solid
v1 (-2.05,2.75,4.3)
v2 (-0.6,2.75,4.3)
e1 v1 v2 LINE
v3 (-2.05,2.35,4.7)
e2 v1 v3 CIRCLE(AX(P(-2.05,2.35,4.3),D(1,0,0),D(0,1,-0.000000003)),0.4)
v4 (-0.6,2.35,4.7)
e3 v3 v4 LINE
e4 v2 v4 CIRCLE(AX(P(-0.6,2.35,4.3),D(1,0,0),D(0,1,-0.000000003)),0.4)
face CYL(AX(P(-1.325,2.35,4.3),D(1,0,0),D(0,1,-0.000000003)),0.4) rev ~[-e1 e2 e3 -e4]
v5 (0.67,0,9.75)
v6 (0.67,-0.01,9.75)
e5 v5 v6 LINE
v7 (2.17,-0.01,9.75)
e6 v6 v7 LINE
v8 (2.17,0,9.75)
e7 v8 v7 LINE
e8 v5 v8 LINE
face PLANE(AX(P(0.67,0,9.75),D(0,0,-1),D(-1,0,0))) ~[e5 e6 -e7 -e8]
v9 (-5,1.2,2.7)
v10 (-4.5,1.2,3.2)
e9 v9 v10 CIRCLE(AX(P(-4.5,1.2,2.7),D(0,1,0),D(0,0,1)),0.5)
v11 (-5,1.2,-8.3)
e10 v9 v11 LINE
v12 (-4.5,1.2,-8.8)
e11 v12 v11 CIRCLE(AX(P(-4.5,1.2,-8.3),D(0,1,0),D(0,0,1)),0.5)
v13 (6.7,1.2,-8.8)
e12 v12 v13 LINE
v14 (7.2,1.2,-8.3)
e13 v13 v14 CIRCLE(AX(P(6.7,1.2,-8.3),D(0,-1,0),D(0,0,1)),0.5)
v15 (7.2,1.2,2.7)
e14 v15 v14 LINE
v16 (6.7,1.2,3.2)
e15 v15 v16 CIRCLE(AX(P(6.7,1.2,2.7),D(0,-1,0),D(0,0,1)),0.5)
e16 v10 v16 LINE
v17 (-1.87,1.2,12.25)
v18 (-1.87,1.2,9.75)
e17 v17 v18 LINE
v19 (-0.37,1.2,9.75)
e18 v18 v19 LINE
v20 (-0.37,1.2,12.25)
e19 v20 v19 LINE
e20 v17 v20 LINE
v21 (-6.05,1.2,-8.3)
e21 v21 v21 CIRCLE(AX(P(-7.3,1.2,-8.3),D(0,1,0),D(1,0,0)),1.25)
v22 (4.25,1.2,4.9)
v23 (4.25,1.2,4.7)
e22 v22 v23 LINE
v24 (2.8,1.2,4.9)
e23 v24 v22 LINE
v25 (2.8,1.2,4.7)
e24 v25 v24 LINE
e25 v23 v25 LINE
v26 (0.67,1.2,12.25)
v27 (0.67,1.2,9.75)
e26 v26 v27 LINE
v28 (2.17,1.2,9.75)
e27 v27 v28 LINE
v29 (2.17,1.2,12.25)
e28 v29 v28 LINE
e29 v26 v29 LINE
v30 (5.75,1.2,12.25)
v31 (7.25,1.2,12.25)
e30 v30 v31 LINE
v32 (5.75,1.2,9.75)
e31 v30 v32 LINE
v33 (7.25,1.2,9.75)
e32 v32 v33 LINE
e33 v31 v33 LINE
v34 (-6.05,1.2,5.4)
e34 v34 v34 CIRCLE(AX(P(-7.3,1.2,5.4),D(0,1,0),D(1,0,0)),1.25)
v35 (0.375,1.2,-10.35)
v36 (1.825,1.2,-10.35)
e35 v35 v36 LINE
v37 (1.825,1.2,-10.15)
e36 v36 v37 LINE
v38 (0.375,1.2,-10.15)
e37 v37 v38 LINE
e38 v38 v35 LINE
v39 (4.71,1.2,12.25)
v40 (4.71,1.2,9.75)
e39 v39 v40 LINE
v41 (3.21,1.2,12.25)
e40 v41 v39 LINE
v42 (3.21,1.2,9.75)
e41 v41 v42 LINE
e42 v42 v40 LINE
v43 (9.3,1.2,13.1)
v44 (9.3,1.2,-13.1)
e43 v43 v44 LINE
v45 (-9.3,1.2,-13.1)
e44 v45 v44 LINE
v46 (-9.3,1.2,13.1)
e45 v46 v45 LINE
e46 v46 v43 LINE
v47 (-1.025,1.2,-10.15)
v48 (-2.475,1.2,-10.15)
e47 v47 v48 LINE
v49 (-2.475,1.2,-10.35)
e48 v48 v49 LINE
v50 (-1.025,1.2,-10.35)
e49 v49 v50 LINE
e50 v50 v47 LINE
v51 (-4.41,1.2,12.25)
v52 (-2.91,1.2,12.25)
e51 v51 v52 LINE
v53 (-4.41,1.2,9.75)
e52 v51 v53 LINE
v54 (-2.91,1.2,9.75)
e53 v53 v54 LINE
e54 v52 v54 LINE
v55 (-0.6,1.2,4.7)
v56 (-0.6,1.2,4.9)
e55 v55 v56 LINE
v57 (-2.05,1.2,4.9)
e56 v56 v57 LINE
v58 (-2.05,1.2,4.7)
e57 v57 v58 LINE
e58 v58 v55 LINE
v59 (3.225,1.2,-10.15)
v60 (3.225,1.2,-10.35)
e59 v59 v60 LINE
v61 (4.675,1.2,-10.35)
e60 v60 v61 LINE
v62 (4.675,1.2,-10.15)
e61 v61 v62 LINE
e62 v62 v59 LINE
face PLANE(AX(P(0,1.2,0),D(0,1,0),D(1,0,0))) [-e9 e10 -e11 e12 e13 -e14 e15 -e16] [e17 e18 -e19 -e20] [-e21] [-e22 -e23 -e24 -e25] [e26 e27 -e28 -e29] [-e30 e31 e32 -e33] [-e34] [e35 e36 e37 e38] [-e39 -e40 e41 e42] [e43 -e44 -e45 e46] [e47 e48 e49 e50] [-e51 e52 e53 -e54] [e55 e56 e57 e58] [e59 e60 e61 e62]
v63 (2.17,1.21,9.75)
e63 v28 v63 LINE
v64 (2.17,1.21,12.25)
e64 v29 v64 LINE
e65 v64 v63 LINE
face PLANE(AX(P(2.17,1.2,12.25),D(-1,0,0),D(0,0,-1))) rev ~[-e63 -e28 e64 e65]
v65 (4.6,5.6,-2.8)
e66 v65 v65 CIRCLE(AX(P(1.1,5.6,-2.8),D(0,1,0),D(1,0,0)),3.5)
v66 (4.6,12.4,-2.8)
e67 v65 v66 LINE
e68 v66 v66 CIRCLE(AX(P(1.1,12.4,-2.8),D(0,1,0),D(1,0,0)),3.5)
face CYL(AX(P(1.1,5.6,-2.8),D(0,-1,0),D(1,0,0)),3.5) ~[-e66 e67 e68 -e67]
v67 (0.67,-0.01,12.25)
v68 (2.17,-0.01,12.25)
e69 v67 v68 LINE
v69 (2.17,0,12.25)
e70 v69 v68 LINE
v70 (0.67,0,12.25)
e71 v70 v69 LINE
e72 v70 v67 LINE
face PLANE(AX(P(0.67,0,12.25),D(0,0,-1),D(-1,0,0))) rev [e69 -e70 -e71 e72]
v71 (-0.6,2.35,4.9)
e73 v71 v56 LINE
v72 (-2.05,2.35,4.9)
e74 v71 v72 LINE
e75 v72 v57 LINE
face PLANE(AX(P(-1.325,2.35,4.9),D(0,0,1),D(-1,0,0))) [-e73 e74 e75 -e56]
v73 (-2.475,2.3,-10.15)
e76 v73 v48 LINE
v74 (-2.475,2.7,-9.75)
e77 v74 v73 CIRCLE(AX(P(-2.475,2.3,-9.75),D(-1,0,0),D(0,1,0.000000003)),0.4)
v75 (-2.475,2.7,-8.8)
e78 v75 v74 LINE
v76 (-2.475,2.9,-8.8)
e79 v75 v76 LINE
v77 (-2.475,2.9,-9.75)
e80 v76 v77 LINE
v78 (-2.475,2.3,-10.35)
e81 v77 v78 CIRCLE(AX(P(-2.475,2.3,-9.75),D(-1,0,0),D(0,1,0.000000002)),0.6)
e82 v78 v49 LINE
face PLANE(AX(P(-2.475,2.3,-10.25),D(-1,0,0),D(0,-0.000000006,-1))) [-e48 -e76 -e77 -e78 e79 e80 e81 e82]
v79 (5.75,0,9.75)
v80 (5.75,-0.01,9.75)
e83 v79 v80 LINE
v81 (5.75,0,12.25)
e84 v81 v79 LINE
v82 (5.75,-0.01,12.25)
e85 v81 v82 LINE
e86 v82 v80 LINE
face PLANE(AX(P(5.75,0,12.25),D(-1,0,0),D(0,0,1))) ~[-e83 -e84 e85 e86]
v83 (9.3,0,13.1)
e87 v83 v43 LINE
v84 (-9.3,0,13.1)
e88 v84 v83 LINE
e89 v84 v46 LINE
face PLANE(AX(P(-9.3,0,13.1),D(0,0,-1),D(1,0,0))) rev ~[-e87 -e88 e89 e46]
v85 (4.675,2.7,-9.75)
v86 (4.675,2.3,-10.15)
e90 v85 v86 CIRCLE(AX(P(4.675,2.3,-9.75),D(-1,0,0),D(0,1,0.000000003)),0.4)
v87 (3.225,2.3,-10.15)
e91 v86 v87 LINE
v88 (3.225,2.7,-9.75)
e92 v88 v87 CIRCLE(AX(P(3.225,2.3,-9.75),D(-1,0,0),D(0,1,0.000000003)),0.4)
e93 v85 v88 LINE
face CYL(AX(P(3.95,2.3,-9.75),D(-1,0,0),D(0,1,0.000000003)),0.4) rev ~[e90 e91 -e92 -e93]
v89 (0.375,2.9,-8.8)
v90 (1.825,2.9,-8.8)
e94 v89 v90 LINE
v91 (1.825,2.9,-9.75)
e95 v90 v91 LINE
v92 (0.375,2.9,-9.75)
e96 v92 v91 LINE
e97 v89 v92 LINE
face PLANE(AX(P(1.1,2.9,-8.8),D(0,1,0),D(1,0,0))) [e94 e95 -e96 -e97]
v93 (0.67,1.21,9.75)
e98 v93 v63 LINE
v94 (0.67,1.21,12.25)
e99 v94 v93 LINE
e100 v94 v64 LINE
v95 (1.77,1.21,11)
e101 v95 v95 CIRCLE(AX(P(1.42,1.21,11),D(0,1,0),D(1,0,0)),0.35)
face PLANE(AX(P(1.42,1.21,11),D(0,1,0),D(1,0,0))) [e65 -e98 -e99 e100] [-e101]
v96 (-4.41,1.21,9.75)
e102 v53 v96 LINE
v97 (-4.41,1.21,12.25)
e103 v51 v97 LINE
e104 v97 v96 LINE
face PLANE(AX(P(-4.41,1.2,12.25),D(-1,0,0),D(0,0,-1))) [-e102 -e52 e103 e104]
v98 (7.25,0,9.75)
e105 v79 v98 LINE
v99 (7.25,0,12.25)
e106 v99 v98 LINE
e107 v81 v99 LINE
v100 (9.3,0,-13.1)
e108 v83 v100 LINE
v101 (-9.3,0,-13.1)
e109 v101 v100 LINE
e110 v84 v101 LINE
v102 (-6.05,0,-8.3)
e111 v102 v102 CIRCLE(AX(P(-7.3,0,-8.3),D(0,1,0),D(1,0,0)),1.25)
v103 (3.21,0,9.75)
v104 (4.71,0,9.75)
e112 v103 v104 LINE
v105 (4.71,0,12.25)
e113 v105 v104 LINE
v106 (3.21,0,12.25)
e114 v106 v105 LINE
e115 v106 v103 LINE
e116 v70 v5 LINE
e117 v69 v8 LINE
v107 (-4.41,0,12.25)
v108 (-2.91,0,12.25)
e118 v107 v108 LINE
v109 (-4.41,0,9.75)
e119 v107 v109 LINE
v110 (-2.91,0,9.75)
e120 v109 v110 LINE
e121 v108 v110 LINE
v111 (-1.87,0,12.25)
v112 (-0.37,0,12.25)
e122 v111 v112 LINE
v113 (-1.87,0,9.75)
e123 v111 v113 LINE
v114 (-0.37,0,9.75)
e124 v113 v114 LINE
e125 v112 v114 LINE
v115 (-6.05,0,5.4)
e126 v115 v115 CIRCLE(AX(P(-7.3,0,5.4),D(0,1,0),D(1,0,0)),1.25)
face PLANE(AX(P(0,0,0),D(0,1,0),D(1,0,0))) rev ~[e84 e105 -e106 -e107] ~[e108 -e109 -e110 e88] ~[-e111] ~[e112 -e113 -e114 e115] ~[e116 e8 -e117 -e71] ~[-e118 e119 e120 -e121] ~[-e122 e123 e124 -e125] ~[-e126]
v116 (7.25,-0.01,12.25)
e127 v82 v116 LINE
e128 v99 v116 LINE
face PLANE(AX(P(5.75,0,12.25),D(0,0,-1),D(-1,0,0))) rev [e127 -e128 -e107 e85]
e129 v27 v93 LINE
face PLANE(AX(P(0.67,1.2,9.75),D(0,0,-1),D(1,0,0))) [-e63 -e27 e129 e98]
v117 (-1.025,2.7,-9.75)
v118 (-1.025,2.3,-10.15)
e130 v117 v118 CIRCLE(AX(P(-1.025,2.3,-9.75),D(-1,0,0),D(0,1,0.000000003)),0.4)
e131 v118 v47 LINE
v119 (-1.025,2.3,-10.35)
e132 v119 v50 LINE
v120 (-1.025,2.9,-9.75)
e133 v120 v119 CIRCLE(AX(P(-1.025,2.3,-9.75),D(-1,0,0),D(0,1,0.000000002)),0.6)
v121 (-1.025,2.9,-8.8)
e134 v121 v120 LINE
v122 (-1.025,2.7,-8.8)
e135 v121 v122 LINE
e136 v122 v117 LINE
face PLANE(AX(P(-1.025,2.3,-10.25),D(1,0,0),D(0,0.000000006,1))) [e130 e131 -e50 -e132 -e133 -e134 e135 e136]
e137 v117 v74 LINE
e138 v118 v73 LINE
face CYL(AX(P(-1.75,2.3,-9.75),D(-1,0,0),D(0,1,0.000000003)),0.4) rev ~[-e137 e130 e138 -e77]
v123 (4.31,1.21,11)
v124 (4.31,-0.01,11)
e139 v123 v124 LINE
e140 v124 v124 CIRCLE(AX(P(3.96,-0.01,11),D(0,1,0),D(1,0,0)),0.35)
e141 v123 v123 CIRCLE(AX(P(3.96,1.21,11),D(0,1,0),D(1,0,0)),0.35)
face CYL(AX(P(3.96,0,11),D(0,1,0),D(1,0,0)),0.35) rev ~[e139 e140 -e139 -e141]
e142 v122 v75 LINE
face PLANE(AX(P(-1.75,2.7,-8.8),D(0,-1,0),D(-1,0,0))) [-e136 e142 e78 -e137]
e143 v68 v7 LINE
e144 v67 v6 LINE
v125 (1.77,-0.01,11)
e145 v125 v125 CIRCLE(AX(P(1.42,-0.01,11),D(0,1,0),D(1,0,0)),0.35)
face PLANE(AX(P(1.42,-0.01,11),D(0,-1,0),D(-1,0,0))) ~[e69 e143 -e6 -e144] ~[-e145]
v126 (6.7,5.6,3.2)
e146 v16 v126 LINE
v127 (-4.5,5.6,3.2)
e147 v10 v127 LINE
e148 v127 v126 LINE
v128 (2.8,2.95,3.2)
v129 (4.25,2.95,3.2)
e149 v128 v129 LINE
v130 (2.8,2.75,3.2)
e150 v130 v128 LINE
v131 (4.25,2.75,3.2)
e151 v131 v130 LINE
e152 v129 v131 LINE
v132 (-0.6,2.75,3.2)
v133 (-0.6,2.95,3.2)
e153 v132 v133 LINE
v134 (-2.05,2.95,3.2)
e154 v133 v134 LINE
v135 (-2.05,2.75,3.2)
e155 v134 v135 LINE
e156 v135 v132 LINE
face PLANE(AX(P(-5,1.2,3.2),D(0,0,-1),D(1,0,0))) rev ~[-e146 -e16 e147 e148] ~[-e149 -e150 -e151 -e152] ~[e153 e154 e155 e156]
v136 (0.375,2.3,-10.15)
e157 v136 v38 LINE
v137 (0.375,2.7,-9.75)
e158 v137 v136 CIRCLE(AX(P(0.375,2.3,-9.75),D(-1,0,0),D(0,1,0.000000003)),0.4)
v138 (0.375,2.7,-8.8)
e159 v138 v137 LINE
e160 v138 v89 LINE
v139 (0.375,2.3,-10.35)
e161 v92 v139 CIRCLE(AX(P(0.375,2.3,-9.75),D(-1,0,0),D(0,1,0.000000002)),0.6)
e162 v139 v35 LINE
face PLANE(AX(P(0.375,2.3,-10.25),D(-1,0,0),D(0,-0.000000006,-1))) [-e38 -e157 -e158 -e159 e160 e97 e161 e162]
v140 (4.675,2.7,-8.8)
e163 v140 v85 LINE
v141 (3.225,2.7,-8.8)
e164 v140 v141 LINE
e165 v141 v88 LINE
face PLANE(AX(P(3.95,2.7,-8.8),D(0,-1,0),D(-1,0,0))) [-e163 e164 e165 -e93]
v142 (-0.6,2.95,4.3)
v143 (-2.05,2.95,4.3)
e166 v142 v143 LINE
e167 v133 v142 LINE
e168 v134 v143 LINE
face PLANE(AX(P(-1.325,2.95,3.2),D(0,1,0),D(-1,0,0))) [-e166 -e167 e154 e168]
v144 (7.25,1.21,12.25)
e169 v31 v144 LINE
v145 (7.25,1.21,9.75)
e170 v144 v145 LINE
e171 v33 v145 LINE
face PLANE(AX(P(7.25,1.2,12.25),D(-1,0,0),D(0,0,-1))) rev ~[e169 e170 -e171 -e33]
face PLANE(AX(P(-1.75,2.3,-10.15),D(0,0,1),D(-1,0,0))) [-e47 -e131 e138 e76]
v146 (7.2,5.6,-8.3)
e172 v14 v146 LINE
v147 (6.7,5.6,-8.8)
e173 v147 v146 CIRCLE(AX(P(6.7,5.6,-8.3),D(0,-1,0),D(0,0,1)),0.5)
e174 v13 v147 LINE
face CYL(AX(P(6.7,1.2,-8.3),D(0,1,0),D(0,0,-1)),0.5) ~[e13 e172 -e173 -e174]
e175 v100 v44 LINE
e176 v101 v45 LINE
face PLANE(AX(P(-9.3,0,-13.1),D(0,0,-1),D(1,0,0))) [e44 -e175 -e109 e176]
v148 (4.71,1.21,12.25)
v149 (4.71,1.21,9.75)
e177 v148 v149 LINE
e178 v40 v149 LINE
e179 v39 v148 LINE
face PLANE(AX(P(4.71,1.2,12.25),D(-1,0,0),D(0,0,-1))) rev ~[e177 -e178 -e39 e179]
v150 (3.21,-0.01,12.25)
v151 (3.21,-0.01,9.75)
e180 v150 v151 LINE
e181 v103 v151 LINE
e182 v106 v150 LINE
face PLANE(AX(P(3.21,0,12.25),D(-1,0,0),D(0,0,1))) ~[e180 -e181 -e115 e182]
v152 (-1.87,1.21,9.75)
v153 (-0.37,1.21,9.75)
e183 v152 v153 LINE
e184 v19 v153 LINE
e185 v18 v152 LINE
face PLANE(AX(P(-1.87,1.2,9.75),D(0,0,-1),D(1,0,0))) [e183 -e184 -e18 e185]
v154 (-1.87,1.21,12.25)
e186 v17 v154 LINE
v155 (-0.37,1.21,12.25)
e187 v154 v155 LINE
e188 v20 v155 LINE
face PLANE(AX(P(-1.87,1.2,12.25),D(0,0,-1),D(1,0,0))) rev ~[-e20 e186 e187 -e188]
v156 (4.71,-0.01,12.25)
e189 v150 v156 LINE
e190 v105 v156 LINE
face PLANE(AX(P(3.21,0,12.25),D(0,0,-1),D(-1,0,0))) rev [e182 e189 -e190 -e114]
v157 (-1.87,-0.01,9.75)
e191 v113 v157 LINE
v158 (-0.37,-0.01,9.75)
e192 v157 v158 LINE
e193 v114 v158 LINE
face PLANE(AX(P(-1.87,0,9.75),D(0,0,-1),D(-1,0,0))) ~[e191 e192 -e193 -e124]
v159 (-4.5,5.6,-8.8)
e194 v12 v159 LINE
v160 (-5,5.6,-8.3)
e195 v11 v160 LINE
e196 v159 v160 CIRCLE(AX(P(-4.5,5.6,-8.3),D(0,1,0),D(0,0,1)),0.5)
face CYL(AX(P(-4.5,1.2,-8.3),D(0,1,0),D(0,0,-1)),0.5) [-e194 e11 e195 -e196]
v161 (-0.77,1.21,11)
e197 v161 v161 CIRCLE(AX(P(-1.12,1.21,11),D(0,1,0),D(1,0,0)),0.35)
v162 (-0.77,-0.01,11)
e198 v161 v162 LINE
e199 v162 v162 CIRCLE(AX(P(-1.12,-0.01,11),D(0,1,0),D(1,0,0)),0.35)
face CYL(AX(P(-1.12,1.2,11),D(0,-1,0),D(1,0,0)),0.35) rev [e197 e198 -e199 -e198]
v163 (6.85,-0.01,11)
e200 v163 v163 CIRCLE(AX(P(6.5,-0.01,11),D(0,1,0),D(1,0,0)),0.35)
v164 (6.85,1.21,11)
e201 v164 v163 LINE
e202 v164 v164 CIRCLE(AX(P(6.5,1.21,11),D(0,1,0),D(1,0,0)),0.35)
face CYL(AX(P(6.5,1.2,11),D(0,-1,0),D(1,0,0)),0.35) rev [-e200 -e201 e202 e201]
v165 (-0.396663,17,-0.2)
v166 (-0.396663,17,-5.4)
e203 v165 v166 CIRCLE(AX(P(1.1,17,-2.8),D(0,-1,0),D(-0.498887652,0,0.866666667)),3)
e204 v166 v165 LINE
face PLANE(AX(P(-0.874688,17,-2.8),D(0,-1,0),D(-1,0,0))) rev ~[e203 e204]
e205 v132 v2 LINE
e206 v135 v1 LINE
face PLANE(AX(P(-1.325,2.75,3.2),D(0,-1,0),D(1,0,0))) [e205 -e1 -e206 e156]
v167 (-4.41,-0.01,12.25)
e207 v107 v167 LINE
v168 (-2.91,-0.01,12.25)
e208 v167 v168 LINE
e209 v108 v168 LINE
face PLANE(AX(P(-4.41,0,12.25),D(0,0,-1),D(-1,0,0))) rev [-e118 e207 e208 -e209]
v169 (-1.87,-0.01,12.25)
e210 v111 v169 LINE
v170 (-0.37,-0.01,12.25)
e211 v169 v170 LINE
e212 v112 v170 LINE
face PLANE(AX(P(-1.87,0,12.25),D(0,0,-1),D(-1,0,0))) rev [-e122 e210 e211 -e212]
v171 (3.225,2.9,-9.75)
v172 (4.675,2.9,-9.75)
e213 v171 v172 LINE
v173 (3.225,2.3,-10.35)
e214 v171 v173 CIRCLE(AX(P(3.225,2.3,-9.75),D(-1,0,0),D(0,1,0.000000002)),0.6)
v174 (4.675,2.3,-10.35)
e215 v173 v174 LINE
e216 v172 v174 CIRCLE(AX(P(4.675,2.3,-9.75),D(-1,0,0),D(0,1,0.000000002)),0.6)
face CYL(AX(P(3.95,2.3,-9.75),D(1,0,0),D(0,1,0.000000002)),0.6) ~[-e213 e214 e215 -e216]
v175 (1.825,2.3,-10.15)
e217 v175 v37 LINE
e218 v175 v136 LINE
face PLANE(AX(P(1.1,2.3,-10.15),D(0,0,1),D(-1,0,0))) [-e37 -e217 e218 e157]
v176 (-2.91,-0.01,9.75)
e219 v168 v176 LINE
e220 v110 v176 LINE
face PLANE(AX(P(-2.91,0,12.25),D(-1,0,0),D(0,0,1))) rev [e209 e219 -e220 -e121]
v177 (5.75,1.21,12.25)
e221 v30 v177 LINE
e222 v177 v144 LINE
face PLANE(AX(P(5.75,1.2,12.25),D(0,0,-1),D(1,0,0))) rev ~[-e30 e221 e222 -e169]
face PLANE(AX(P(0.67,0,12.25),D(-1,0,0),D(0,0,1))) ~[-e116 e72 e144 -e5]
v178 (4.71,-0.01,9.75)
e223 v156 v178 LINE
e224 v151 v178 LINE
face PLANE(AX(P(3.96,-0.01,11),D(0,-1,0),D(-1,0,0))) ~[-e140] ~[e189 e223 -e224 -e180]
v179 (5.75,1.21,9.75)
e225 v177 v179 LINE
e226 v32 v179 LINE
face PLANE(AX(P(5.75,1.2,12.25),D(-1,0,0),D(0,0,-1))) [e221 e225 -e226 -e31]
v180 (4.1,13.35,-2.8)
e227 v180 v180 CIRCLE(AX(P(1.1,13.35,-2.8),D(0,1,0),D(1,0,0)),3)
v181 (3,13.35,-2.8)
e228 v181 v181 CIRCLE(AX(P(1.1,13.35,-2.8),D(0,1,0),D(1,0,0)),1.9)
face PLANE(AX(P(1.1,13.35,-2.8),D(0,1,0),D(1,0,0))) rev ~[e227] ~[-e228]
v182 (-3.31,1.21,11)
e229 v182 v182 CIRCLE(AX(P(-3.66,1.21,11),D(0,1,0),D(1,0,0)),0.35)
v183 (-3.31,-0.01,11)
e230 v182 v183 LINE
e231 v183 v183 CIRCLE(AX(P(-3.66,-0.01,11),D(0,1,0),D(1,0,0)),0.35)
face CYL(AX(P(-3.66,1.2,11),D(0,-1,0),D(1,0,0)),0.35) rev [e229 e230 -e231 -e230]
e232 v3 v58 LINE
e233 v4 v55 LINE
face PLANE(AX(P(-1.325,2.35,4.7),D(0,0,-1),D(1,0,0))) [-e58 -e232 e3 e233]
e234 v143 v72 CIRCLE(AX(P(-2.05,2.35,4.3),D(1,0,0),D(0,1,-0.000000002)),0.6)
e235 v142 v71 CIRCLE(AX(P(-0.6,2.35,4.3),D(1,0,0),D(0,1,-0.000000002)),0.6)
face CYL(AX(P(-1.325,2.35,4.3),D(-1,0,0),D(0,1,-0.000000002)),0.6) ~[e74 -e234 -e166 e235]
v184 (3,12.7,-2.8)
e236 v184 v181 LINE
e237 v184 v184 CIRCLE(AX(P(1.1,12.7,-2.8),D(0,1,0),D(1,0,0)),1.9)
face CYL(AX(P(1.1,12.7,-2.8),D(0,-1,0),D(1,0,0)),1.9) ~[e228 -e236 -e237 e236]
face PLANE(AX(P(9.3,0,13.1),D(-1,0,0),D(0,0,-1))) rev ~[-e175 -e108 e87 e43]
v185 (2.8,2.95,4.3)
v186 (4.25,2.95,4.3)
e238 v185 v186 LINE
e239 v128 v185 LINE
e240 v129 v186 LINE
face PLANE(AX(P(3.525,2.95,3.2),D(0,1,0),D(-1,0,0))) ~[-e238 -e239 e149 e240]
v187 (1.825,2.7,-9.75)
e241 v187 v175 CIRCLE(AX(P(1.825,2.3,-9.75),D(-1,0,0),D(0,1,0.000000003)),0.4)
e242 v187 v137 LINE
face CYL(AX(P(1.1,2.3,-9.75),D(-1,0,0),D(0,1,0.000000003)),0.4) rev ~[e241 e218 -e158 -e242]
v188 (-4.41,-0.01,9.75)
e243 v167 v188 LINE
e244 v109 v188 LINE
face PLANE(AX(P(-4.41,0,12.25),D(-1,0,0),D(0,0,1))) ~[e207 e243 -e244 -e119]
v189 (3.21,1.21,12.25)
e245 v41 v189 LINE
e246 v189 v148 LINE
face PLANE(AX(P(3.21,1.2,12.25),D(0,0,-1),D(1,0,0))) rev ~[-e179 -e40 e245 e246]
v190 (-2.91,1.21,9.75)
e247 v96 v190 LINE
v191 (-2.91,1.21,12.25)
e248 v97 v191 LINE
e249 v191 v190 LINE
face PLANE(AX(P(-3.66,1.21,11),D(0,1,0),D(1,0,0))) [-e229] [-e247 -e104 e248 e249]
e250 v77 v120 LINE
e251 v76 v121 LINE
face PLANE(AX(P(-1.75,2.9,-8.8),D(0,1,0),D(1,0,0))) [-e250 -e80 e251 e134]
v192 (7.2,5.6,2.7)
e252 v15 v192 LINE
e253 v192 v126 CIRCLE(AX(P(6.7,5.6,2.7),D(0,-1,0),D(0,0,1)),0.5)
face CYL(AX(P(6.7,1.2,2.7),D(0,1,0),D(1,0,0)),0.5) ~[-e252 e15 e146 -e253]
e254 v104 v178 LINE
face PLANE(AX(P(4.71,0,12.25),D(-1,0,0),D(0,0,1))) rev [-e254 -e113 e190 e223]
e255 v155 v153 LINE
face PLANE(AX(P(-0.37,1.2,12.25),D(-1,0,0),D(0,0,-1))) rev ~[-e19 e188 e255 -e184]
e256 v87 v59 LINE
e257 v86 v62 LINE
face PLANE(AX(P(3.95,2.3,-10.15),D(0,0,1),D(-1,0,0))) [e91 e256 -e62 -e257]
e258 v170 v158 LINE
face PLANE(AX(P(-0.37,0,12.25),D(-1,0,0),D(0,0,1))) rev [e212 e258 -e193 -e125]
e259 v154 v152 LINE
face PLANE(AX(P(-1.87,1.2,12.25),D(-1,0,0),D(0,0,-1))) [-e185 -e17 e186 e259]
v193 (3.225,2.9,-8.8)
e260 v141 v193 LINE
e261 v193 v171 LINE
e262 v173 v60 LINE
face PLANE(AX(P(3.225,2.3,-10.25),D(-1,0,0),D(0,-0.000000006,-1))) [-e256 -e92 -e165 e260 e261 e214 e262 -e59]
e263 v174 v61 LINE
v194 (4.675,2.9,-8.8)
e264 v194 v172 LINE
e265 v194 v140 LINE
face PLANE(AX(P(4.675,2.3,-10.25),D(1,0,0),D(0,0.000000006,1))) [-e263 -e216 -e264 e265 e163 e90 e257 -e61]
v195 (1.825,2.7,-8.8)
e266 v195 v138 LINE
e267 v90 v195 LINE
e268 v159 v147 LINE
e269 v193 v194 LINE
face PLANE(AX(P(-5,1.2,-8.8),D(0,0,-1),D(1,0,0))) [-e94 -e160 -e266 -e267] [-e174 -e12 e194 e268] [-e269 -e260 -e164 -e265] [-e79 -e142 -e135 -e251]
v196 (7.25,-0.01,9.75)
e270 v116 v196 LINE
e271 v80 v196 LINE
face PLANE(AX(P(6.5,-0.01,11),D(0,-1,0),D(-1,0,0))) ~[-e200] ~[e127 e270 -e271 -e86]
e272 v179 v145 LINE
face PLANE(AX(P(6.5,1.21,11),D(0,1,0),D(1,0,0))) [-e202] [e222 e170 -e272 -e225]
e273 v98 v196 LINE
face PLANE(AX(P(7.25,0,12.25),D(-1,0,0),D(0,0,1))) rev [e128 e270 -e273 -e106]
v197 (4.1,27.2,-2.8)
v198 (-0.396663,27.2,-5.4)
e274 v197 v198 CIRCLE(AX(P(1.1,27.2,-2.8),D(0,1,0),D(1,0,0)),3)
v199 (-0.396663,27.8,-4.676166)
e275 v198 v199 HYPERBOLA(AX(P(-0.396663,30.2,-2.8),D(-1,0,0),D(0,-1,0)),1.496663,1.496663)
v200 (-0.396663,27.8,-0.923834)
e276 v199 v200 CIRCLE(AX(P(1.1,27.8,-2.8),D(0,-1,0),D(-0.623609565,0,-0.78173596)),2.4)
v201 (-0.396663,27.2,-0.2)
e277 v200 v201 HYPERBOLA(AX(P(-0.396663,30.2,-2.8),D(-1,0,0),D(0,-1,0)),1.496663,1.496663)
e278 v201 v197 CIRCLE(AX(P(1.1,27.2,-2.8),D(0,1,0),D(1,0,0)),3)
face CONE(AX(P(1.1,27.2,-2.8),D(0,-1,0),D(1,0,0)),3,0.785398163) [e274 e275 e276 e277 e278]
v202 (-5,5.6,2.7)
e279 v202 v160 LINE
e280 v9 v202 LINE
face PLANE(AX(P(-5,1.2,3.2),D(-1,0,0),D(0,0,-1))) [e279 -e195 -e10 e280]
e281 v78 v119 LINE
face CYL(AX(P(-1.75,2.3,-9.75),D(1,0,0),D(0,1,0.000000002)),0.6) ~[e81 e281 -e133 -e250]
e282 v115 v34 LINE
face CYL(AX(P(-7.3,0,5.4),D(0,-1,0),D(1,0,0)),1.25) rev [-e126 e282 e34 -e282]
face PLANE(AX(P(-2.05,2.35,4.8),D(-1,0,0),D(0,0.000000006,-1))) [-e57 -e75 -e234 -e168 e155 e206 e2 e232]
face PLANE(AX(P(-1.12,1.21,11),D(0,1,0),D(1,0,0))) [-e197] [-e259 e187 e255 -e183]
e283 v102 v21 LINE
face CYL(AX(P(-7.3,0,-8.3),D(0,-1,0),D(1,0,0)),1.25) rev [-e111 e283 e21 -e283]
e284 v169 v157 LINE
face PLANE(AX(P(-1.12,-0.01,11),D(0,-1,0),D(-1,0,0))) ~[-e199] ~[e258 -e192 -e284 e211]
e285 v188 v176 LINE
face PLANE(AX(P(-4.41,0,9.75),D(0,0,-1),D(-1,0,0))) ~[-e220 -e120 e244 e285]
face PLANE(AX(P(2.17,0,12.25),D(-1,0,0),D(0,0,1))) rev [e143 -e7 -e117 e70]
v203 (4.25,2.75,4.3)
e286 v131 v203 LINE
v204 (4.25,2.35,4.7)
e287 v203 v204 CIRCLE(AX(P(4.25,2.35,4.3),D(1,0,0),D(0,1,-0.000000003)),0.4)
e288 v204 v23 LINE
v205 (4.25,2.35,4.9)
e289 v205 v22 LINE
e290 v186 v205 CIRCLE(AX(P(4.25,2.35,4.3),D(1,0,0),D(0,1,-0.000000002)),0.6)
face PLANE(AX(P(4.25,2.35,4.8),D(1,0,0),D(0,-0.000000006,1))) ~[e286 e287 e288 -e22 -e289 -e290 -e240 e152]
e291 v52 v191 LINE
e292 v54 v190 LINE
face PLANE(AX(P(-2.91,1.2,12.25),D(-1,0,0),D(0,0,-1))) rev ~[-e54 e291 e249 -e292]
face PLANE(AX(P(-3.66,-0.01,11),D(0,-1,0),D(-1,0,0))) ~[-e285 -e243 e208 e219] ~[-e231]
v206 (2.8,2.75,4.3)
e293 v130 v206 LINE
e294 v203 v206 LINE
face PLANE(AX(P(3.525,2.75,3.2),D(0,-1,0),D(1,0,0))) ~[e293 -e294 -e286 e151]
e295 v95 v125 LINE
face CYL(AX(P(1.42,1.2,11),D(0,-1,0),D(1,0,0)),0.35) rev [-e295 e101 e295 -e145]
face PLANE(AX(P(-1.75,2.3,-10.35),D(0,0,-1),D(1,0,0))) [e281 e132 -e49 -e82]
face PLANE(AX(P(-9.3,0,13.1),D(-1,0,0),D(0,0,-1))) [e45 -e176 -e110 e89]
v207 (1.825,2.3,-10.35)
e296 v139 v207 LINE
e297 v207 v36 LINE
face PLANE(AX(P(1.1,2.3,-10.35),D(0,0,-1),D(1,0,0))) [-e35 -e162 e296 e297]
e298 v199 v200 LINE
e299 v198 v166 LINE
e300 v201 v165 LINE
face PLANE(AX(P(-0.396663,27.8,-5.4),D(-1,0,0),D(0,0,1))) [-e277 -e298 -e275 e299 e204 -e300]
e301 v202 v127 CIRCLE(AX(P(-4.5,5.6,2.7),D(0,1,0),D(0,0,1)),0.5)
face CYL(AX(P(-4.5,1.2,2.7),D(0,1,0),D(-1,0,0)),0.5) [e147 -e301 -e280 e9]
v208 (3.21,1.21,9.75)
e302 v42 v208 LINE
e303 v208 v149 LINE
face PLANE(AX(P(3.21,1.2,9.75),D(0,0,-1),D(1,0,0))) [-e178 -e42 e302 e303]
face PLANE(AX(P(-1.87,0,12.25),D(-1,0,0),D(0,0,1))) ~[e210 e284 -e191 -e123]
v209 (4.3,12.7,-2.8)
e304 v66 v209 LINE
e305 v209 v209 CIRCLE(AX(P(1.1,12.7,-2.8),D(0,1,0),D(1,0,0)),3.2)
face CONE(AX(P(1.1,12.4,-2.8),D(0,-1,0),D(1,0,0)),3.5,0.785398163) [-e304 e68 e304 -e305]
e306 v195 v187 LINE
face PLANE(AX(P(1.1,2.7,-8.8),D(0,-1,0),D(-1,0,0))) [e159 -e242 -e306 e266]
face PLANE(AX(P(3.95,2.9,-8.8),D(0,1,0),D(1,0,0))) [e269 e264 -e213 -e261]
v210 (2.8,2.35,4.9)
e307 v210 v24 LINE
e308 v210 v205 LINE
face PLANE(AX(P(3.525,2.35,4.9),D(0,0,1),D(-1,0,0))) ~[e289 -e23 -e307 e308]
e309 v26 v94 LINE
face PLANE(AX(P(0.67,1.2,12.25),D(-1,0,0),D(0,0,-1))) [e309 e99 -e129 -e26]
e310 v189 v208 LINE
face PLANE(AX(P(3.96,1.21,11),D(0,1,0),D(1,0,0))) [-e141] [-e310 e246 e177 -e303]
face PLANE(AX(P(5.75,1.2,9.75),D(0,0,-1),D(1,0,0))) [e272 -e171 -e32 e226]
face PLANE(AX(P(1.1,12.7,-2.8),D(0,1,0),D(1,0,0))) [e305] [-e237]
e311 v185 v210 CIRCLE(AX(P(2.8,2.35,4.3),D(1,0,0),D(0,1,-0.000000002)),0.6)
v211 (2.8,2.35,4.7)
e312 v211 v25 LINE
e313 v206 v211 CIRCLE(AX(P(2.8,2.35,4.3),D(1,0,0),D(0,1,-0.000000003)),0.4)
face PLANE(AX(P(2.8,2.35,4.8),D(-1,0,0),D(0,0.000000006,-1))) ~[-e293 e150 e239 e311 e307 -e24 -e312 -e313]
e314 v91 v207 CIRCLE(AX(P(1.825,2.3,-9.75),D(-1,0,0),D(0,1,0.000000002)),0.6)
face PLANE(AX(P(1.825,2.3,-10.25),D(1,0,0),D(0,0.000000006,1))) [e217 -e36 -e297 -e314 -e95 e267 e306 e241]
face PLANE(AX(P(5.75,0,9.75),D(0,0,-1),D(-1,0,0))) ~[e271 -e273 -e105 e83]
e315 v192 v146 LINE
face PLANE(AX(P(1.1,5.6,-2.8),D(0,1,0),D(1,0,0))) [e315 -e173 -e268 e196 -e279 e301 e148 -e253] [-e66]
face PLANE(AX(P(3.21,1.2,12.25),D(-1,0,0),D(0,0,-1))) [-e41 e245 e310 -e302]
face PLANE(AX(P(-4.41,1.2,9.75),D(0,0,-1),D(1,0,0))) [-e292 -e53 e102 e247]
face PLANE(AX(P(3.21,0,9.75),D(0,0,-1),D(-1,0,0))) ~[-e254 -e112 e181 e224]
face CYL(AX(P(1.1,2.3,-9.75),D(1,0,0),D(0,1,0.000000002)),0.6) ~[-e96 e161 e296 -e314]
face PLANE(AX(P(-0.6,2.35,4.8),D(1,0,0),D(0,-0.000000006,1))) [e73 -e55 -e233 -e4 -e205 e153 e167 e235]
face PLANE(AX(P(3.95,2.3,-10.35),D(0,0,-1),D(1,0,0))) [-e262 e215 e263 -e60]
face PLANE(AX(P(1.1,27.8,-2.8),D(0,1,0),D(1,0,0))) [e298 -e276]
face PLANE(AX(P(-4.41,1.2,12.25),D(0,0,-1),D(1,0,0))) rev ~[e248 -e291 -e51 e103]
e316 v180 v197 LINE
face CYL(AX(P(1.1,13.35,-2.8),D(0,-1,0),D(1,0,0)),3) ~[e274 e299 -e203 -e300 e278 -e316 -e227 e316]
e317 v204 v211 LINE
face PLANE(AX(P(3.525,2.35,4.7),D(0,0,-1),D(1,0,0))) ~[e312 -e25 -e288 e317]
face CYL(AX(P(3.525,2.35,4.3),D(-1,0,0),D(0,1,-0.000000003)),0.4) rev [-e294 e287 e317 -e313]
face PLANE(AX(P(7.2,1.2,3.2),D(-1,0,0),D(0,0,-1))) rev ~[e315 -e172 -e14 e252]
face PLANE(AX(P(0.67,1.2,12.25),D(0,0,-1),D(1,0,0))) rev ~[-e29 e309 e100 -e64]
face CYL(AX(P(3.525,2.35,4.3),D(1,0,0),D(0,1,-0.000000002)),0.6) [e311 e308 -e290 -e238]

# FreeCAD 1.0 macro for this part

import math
import FreeCAD as App
import Part
import Sketcher


def edges_at(feature, points):
    """Names of the edges that pass closest to the given points."""
    edges = feature.Shape.Edges
    near = lambda p: min(range(len(edges)), key=lambda i: edges[i].distToShape(Part.Vertex(*p))[0])
    return sorted({f"Edge{near(p) + 1}" for p in points})

doc = App.newDocument("Part")
body = doc.addObject("PartDesign::Body", "Body")

# Sketch on XZ plane
sketch1 = body.newObject("Sketcher::SketchObject", "Sketch")
sketch1.AttachmentSupport = (doc.getObject("XZ_Plane"), [""])
sketch1.MapMode = "FlatFace"
sketch1.addGeometry([
    Part.LineSegment(App.Vector(-9.3, -13.1, 0), App.Vector(-9.3, 13.1, 0)),  # 0
    Part.LineSegment(App.Vector(-9.3, 13.1, 0), App.Vector(9.3, 13.1, 0)),  # 1
    Part.LineSegment(App.Vector(9.3, 13.1, 0), App.Vector(9.3, -13.1, 0)),  # 2
    Part.LineSegment(App.Vector(9.3, -13.1, 0), App.Vector(-9.3, -13.1, 0)),  # 3
    Part.Circle(App.Vector(-7.3, 5.4, 0), App.Vector(0, 0, 1), 1.2),  # 4
    Part.Circle(App.Vector(-7.3, -8.3, 0), App.Vector(0, 0, 1), 1.2),  # 5
], False)
sketch1.addConstraint([
    Sketcher.Constraint("Coincident", 0, 2, 1, 1),
    Sketcher.Constraint("Coincident", 1, 2, 2, 1),
    Sketcher.Constraint("Coincident", 2, 2, 3, 1),
    Sketcher.Constraint("Coincident", 3, 2, 0, 1),
    Sketcher.Constraint("Vertical", 0),
    Sketcher.Constraint("Horizontal", 1),
    Sketcher.Constraint("Vertical", 2),
    Sketcher.Constraint("Horizontal", 3),
    Sketcher.Constraint("Equal", 4, 5),
    Sketcher.Constraint("Symmetric", 0, 2, 2, 2, -1, 1),
    Sketcher.Constraint("Vertical", 4, 3, 5, 3),
    Sketcher.Constraint("Diameter", 4, 2.5),
    Sketcher.Constraint("DistanceX", 1, 1, 1, 2, 18.6),
    Sketcher.Constraint("DistanceY", 0, 1, 0, 2, 26.2),
    Sketcher.Constraint("DistanceX", 0, 2, 4, 3, 2.0),
    Sketcher.Constraint("DistanceY", -1, 1, 4, 3, 5.4),
    Sketcher.Constraint("DistanceY", 5, 3, -1, 1, 8.3),
])
pad1 = body.newObject("PartDesign::Pad", "Pad")
pad1.Profile = sketch1
pad1.Length = 1.2
pad1.Reversed = True

# Sketch on XZ plane
sketch2 = body.newObject("Sketcher::SketchObject", "Sketch001")
sketch2.AttachmentSupport = (doc.getObject("XZ_Plane"), [""])
sketch2.MapMode = "FlatFace"
sketch2.AttachmentOffset = App.Placement(App.Vector(0, 0, -1.2), App.Rotation())
sketch2.addGeometry([
    Part.LineSegment(App.Vector(-5, -9, 0), App.Vector(-5, 3, 0)),
    Part.LineSegment(App.Vector(-5, 3, 0), App.Vector(7, 3, 0)),
    Part.LineSegment(App.Vector(7, 3, 0), App.Vector(7, -9, 0)),
    Part.LineSegment(App.Vector(7, -9, 0), App.Vector(-5, -9, 0)),
], False)
sketch2.addConstraint([
    Sketcher.Constraint("Coincident", 0, 2, 1, 1),
    Sketcher.Constraint("Coincident", 1, 2, 2, 1),
    Sketcher.Constraint("Coincident", 2, 2, 3, 1),
    Sketcher.Constraint("Coincident", 3, 2, 0, 1),
    Sketcher.Constraint("Vertical", 0),
    Sketcher.Constraint("Horizontal", 1),
    Sketcher.Constraint("Vertical", 2),
    Sketcher.Constraint("Horizontal", 3),
    Sketcher.Constraint("DistanceY", 0, 1, 0, 2, 12.0),
    Sketcher.Constraint("DistanceX", 1, 1, 1, 2, 12.2),
    Sketcher.Constraint("DistanceX", 0, 2, -1, 1, 5.0),
    Sketcher.Constraint("DistanceY", -1, 1, 0, 2, 3.2),
])
pad2 = body.newObject("PartDesign::Pad", "Pad001")
pad2.Profile = sketch2
pad2.Length = 4.4
pad2.Reversed = True

# Sketch on XY plane
sketch3 = body.newObject("Sketcher::SketchObject", "Sketch002")
sketch3.AttachmentSupport = (doc.getObject("XY_Plane"), [""])
sketch3.MapMode = "FlatFace"
sketch3.AttachmentOffset = App.Placement(App.Vector(0, 0, 3.2), App.Rotation())
sketch3.addGeometry([
    Part.LineSegment(App.Vector(-2.05, 2.95, 0), App.Vector(-2.05, 2.75, 0)),
    Part.LineSegment(App.Vector(-2.05, 2.75, 0), App.Vector(-0.6, 2.75, 0)),
    Part.LineSegment(App.Vector(-0.6, 2.75, 0), App.Vector(-0.6, 2.95, 0)),
    Part.LineSegment(App.Vector(-0.6, 2.95, 0), App.Vector(-2.05, 2.95, 0)),
], False)
sketch3.addConstraint([
    Sketcher.Constraint("Coincident", 0, 2, 1, 1),
    Sketcher.Constraint("Coincident", 1, 2, 2, 1),
    Sketcher.Constraint("Coincident", 2, 2, 3, 1),
    Sketcher.Constraint("Coincident", 3, 2, 0, 1),
    Sketcher.Constraint("Vertical", 0),
    Sketcher.Constraint("Horizontal", 1),
    Sketcher.Constraint("Vertical", 2),
    Sketcher.Constraint("Horizontal", 3),
    Sketcher.Constraint("DistanceY", 0, 2, 0, 1, 0.2),
    Sketcher.Constraint("DistanceX", 1, 1, 1, 2, 1.45),
    Sketcher.Constraint("DistanceX", 1, 2, -1, 1, 0.6),
    Sketcher.Constraint("DistanceY", -1, 1, 0, 2, 2.75),
])

# Sketch on YZ plane
sketch4 = body.newObject("Sketcher::SketchObject", "Sketch003")
sketch4.AttachmentSupport = (doc.getObject("YZ_Plane"), [""])
sketch4.MapMode = "FlatFace"
sketch4.AttachmentOffset = App.Placement(App.Vector(0, 0, -1.325), App.Rotation())
sketch4.addGeometry([
    Part.LineSegment(App.Vector(2.85, 3.2, 0), App.Vector(2.85, 4.3, 0)),
    Part.ArcOfCircle(Part.Circle(App.Vector(2.35, 4.3, 0), App.Vector(0, 0, 1), 0.5), math.radians(0), math.radians(90)),
    Part.LineSegment(App.Vector(2.35, 4.8, 0), App.Vector(1.2, 4.8, 0)),
], False)
sketch4.addConstraint([
    Sketcher.Constraint("Tangent", 0, 2, 1, 1),
    Sketcher.Constraint("Tangent", 1, 2, 2, 1),
    Sketcher.Constraint("Vertical", 0),
    Sketcher.Constraint("Horizontal", 2),
    Sketcher.Constraint("Radius", 1, 0.5),
    Sketcher.Constraint("DistanceY", 0, 1, 0, 2, 1.1),
    Sketcher.Constraint("DistanceX", 2, 2, 2, 1, 1.15),
    Sketcher.Constraint("DistanceY", -1, 1, 1, 3, 4.3),
    Sketcher.Constraint("DistanceX", -1, 1, 2, 2, 1.2),
])
doc.recompute()

additivepipe = body.newObject("PartDesign::AdditivePipe", "AdditivePipe")
additivepipe.Profile = sketch3
additivepipe.Spine = (sketch4, ["Edge1", "Edge2", "Edge3"])
doc.recompute()

datumplane = body.newObject("PartDesign::Plane", "DatumPlane")
datumplane.AttachmentSupport = (doc.getObject("YZ_Plane"), [""])
datumplane.MapMode = "FlatFace"
datumplane.AttachmentOffset = App.Placement(App.Vector(0, 0, 1.1), App.Rotation())
mirrored = body.newObject("PartDesign::Mirrored", "Mirrored")
mirrored.Originals = [additivepipe]
mirrored.MirrorPlane = (datumplane, [""])
body.Tip = mirrored

# Sketch on XY plane
sketch5 = body.newObject("Sketcher::SketchObject", "Sketch004")
sketch5.AttachmentSupport = (doc.getObject("XY_Plane"), [""])
sketch5.MapMode = "FlatFace"
sketch5.AttachmentOffset = App.Placement(App.Vector(0, 0, -8.8), App.Rotation())
sketch5.addGeometry([
    Part.LineSegment(App.Vector(1.82, 2.9, 0), App.Vector(1.82, 2.7, 0)),
    Part.LineSegment(App.Vector(1.82, 2.7, 0), App.Vector(0.38, 2.7, 0)),
    Part.LineSegment(App.Vector(0.38, 2.7, 0), App.Vector(0.38, 2.9, 0)),
    Part.LineSegment(App.Vector(0.38, 2.9, 0), App.Vector(1.82, 2.9, 0)),
], False)
sketch5.addConstraint([
    Sketcher.Constraint("Coincident", 0, 2, 1, 1),
    Sketcher.Constraint("Coincident", 1, 2, 2, 1),
    Sketcher.Constraint("Coincident", 2, 2, 3, 1),
    Sketcher.Constraint("Coincident", 3, 2, 0, 1),
    Sketcher.Constraint("Vertical", 0),
    Sketcher.Constraint("Horizontal", 1),
    Sketcher.Constraint("Vertical", 2),
    Sketcher.Constraint("Horizontal", 3),
    Sketcher.Constraint("DistanceY", 0, 2, 0, 1, 0.2),
    Sketcher.Constraint("DistanceX", 1, 2, 1, 1, 1.45),
    Sketcher.Constraint("DistanceY", -1, 1, 0, 2, 2.7),
    Sketcher.Constraint("DistanceX", -1, 1, 0, 2, 1.825),
])

# Sketch on YZ plane
sketch6 = body.newObject("Sketcher::SketchObject", "Sketch005")
sketch6.AttachmentSupport = (doc.getObject("YZ_Plane"), [""])
sketch6.MapMode = "FlatFace"
sketch6.AttachmentOffset = App.Placement(App.Vector(0, 0, 1.1), App.Rotation())
sketch6.addGeometry([
    Part.LineSegment(App.Vector(2.8, -8.8, 0), App.Vector(2.8, -9.75, 0)),
    Part.ArcOfCircle(Part.Circle(App.Vector(2.3, -9.75, 0), App.Vector(0, 0, 1), 0.5), math.radians(-90), math.radians(0)),
    Part.LineSegment(App.Vector(2.3, -10.25, 0), App.Vector(1.2, -10.25, 0)),
], False)
sketch6.addConstraint([
    Sketcher.Constraint("Tangent", 0, 2, 1, 2),
    Sketcher.Constraint("Tangent", 1, 1, 2, 1),
    Sketcher.Constraint("Vertical", 0),
    Sketcher.Constraint("Horizontal", 2),
    Sketcher.Constraint("Radius", 1, 0.5),
    Sketcher.Constraint("DistanceX", 2, 2, 2, 1, 1.1),
    Sketcher.Constraint("DistanceY", 0, 2, 0, 1, 0.95),
    Sketcher.Constraint("DistanceX", -1, 1, 1, 3, 2.3),
    Sketcher.Constraint("DistanceY", 0, 1, -1, 1, 8.8),
])
doc.recompute()

additivepipe2 = body.newObject("PartDesign::AdditivePipe", "AdditivePipe001")
additivepipe2.Profile = sketch5
additivepipe2.Spine = (sketch6, ["Edge1", "Edge2", "Edge3"])
doc.recompute()

linearpattern = body.newObject("PartDesign::LinearPattern", "LinearPattern")
linearpattern.Originals = [additivepipe2]
linearpattern.Direction = (doc.getObject("X_Axis"), [""])
linearpattern.Mode = "offset"
linearpattern.Offset = 2.85
linearpattern.Occurrences = 2
linearpattern.Reversed = True
body.Tip = linearpattern
doc.recompute()

linearpattern2 = body.newObject("PartDesign::LinearPattern", "LinearPattern001")
linearpattern2.Originals = [additivepipe2]
linearpattern2.Direction = (doc.getObject("X_Axis"), [""])
linearpattern2.Mode = "offset"
linearpattern2.Offset = 2.85
linearpattern2.Occurrences = 2
body.Tip = linearpattern2

# Sketch on XZ plane
sketch7 = body.newObject("Sketcher::SketchObject", "Sketch006")
sketch7.AttachmentSupport = (doc.getObject("XZ_Plane"), [""])
sketch7.MapMode = "FlatFace"
sketch7.AttachmentOffset = App.Placement(App.Vector(0, 0, -5.6), App.Rotation())
sketch7.addGeometry(Part.Circle(App.Vector(1.1, -2.8, 0), App.Vector(0, 0, 1), 3.5), False)
sketch7.addConstraint([
    Sketcher.Constraint("Diameter", 0, 7.0),
    Sketcher.Constraint("DistanceX", -1, 1, 0, 3, 1.1),
    Sketcher.Constraint("DistanceY", 0, 3, -1, 1, 2.8),
])
pad3 = body.newObject("PartDesign::Pad", "Pad002")
pad3.Profile = sketch7
pad3.Length = 7.1
pad3.Reversed = True
doc.recompute()

chamfer = body.newObject("PartDesign::Chamfer", "Chamfer")
chamfer.Base = (pad3, edges_at(pad3, [(-2.4, 12.7, -2.8)]))
chamfer.Size = 0.3

# Sketch on XZ plane
sketch8 = body.newObject("Sketcher::SketchObject", "Sketch007")
sketch8.AttachmentSupport = (doc.getObject("XZ_Plane"), [""])
sketch8.MapMode = "FlatFace"
sketch8.AttachmentOffset = App.Placement(App.Vector(0, 0, -12.7), App.Rotation())
sketch8.addGeometry(Part.Circle(App.Vector(1.1, -2.8, 0), App.Vector(0, 0, 1), 1.9), False)
sketch8.addConstraint([
    Sketcher.Constraint("Diameter", 0, 3.8),
    Sketcher.Constraint("DistanceX", -1, 1, 0, 3, 1.1),
    Sketcher.Constraint("DistanceY", 0, 3, -1, 1, 2.8),
])
pad4 = body.newObject("PartDesign::Pad", "Pad003")
pad4.Profile = sketch8
pad4.Length = 0.65
pad4.Reversed = True

# Sketch on XZ plane
sketch9 = body.newObject("Sketcher::SketchObject", "Sketch008")
sketch9.AttachmentSupport = (doc.getObject("XZ_Plane"), [""])
sketch9.MapMode = "FlatFace"
sketch9.AttachmentOffset = App.Placement(App.Vector(0, 0, -13.35), App.Rotation())
sketch9.addGeometry(Part.Circle(App.Vector(1.1, -2.8, 0), App.Vector(0, 0, 1), 3), False)
sketch9.addConstraint([
    Sketcher.Constraint("Diameter", 0, 6.0),
    Sketcher.Constraint("DistanceX", -1, 1, 0, 3, 1.1),
    Sketcher.Constraint("DistanceY", 0, 3, -1, 1, 2.8),
])
pad5 = body.newObject("PartDesign::Pad", "Pad004")
pad5.Profile = sketch9
pad5.Length = 14.45
pad5.Reversed = True
doc.recompute()

chamfer2 = body.newObject("PartDesign::Chamfer", "Chamfer001")
chamfer2.Base = (pad5, edges_at(pad5, [(-1.9, 27.8, -2.8)]))
chamfer2.Size = 0.6

# Sketch on XZ plane
sketch10 = body.newObject("Sketcher::SketchObject", "Sketch009")
sketch10.AttachmentSupport = (doc.getObject("XZ_Plane"), [""])
sketch10.MapMode = "FlatFace"
sketch10.AttachmentOffset = App.Placement(App.Vector(0, 0, -27.8), App.Rotation())
sketch10.addGeometry([
    Part.LineSegment(App.Vector(-0.4, -0.2, 0), App.Vector(-0.4, -5.4, 0)),
    Part.ArcOfCircle(Part.Circle(App.Vector(1.1, -2.8, 0), App.Vector(0, 0, 1), 3), math.radians(120), math.radians(240)),
], False)
sketch10.addConstraint([
    Sketcher.Constraint("Coincident", 0, 1, 1, 1),
    Sketcher.Constraint("Coincident", 1, 2, 0, 2),
    Sketcher.Constraint("Vertical", 0),
    Sketcher.Constraint("Radius", 1, 3.0),
    Sketcher.Constraint("DistanceY", 0, 2, 0, 1, 5.2),
    Sketcher.Constraint("DistanceX", -1, 1, 1, 3, 1.1),
    Sketcher.Constraint("DistanceY", 1, 3, -1, 1, 2.8),
])
pocket1 = body.newObject("PartDesign::Pocket", "Pocket")
pocket1.Profile = sketch10
pocket1.Length = 10.8
pocket1.Reversed = True

# Sketch on XZ plane
sketch11 = body.newObject("Sketcher::SketchObject", "Sketch010")
sketch11.AttachmentSupport = (doc.getObject("XZ_Plane"), [""])
sketch11.MapMode = "FlatFace"
sketch11.AttachmentOffset = App.Placement(App.Vector(0, 0, -1.2), App.Rotation())
sketch11.addGeometry([
    Part.Circle(App.Vector(6.5, 11, 0), App.Vector(0, 0, 1), 0.35),  # 0
    Part.Circle(App.Vector(3.96, 11, 0), App.Vector(0, 0, 1), 0.35),  # 1
    Part.Circle(App.Vector(1.42, 11, 0), App.Vector(0, 0, 1), 0.35),  # 2
    Part.Circle(App.Vector(-1.12, 11, 0), App.Vector(0, 0, 1), 0.35),  # 3
    Part.Circle(App.Vector(-3.66, 11, 0), App.Vector(0, 0, 1), 0.35),  # 4
], False)
sketch11.addConstraint([
    Sketcher.Constraint("Equal", 0, 1),
    Sketcher.Constraint("Equal", 1, 2),
    Sketcher.Constraint("Equal", 2, 3),
    Sketcher.Constraint("Equal", 3, 4),
    Sketcher.Constraint("Horizontal", 0, 3, 1, 3),
    Sketcher.Constraint("Horizontal", 1, 3, 2, 3),
    Sketcher.Constraint("Horizontal", 2, 3, 3, 3),
    Sketcher.Constraint("Horizontal", 3, 3, 4, 3),
    Sketcher.Constraint("Diameter", 0, 0.7),
    Sketcher.Constraint("DistanceY", -1, 1, 0, 3, 11.0),
    Sketcher.Constraint("DistanceX", -1, 1, 0, 3, 6.5),
    Sketcher.Constraint("DistanceX", -1, 1, 1, 3, 3.96),
    Sketcher.Constraint("DistanceX", -1, 1, 2, 3, 1.42),
    Sketcher.Constraint("DistanceX", 3, 3, -1, 1, 1.12),
    Sketcher.Constraint("DistanceX", 4, 3, -1, 1, 3.66),
])
pocket2 = body.newObject("PartDesign::Pocket", "Pocket001")
pocket2.Profile = sketch11
pocket2.Length = 1.2
pocket2.Reversed = True

# Sketch on XZ plane
sketch12 = body.newObject("Sketcher::SketchObject", "Sketch011")
sketch12.AttachmentSupport = (doc.getObject("XZ_Plane"), [""])
sketch12.MapMode = "FlatFace"
sketch12.AttachmentOffset = App.Placement(App.Vector(0, 0, -1.2), App.Rotation())
sketch12.addGeometry([
    Part.LineSegment(App.Vector(3.21, 9.75, 0), App.Vector(3.21, 12.25, 0)),  # 0
    Part.LineSegment(App.Vector(3.21, 12.25, 0), App.Vector(4.71, 12.25, 0)),  # 1
    Part.LineSegment(App.Vector(4.71, 12.25, 0), App.Vector(4.71, 9.75, 0)),  # 2
    Part.LineSegment(App.Vector(4.71, 9.75, 0), App.Vector(3.21, 9.75, 0)),  # 3
    Part.Circle(App.Vector(3.96, 11, 0), App.Vector(0, 0, 1), 0.35),  # 4
    Part.LineSegment(App.Vector(5.75, 9.75, 0), App.Vector(5.75, 12.25, 0)),  # 5
    Part.LineSegment(App.Vector(5.75, 12.25, 0), App.Vector(7.25, 12.25, 0)),  # 6
    Part.LineSegment(App.Vector(7.25, 12.25, 0), App.Vector(7.25, 9.75, 0)),  # 7
    Part.LineSegment(App.Vector(7.25, 9.75, 0), App.Vector(5.75, 9.75, 0)),  # 8
    Part.Circle(App.Vector(6.5, 11, 0), App.Vector(0, 0, 1), 0.35),  # 9
    Part.LineSegment(App.Vector(0.67, 9.75, 0), App.Vector(0.67, 12.25, 0)),  # 10
    Part.LineSegment(App.Vector(0.67, 12.25, 0), App.Vector(2.17, 12.25, 0)),  # 11
    Part.LineSegment(App.Vector(2.17, 12.25, 0), App.Vector(2.17, 9.75, 0)),  # 12
    Part.LineSegment(App.Vector(2.17, 9.75, 0), App.Vector(0.67, 9.75, 0)),  # 13
    Part.Circle(App.Vector(1.42, 11, 0), App.Vector(0, 0, 1), 0.35),  # 14
    Part.LineSegment(App.Vector(-1.87, 9.75, 0), App.Vector(-1.87, 12.25, 0)),  # 15
    Part.LineSegment(App.Vector(-1.87, 12.25, 0), App.Vector(-0.37, 12.25, 0)),  # 16
    Part.LineSegment(App.Vector(-0.37, 12.25, 0), App.Vector(-0.37, 9.75, 0)),  # 17
    Part.LineSegment(App.Vector(-0.37, 9.75, 0), App.Vector(-1.87, 9.75, 0)),  # 18
    Part.Circle(App.Vector(-1.12, 11, 0), App.Vector(0, 0, 1), 0.35),  # 19
    Part.LineSegment(App.Vector(-4.41, 9.75, 0), App.Vector(-4.41, 12.25, 0)),  # 20
    Part.LineSegment(App.Vector(-4.41, 12.25, 0), App.Vector(-2.91, 12.25, 0)),  # 21
    Part.LineSegment(App.Vector(-2.91, 12.25, 0), App.Vector(-2.91, 9.75, 0)),  # 22
    Part.LineSegment(App.Vector(-2.91, 9.75, 0), App.Vector(-4.41, 9.75, 0)),  # 23
    Part.Circle(App.Vector(-3.66, 11, 0), App.Vector(0, 0, 1), 0.35),  # 24
], False)
sketch12.addConstraint([
    Sketcher.Constraint("Coincident", 0, 2, 1, 1),
    Sketcher.Constraint("Coincident", 1, 2, 2, 1),
    Sketcher.Constraint("Coincident", 2, 2, 3, 1),
    Sketcher.Constraint("Coincident", 3, 2, 0, 1),
    Sketcher.Constraint("Coincident", 5, 2, 6, 1),
    Sketcher.Constraint("Coincident", 6, 2, 7, 1),
    Sketcher.Constraint("Coincident", 7, 2, 8, 1),
    Sketcher.Constraint("Coincident", 8, 2, 5, 1),
    Sketcher.Constraint("Coincident", 10, 2, 11, 1),
    Sketcher.Constraint("Coincident", 11, 2, 12, 1),
    Sketcher.Constraint("Coincident", 12, 2, 13, 1),
    Sketcher.Constraint("Coincident", 13, 2, 10, 1),
    Sketcher.Constraint("Coincident", 15, 2, 16, 1),
    Sketcher.Constraint("Coincident", 16, 2, 17, 1),
    Sketcher.Constraint("Coincident", 17, 2, 18, 1),
    Sketcher.Constraint("Coincident", 18, 2, 15, 1),
    Sketcher.Constraint("Coincident", 20, 2, 21, 1),
    Sketcher.Constraint("Coincident", 21, 2, 22, 1),
    Sketcher.Constraint("Coincident", 22, 2, 23, 1),
    Sketcher.Constraint("Coincident", 23, 2, 20, 1),
    Sketcher.Constraint("Vertical", 0),
    Sketcher.Constraint("Horizontal", 1),
    Sketcher.Constraint("Vertical", 2),
    Sketcher.Constraint("Horizontal", 3),
    Sketcher.Constraint("Vertical", 5),
    Sketcher.Constraint("Horizontal", 6),
    Sketcher.Constraint("Vertical", 7),
    Sketcher.Constraint("Horizontal", 8),
    Sketcher.Constraint("Vertical", 10),
    Sketcher.Constraint("Horizontal", 11),
    Sketcher.Constraint("Vertical", 12),
    Sketcher.Constraint("Horizontal", 13),
    Sketcher.Constraint("Vertical", 15),
    Sketcher.Constraint("Horizontal", 16),
    Sketcher.Constraint("Vertical", 17),
    Sketcher.Constraint("Horizontal", 18),
    Sketcher.Constraint("Vertical", 20),
    Sketcher.Constraint("Horizontal", 21),
    Sketcher.Constraint("Vertical", 22),
    Sketcher.Constraint("Horizontal", 23),
    Sketcher.Constraint("Equal", 4, 9),
    Sketcher.Constraint("Equal", 9, 14),
    Sketcher.Constraint("Equal", 14, 19),
    Sketcher.Constraint("Equal", 19, 24),
    Sketcher.Constraint("Horizontal", 4, 3, 9, 3),
    Sketcher.Constraint("Horizontal", 9, 3, 14, 3),
    Sketcher.Constraint("Horizontal", 14, 3, 19, 3),
    Sketcher.Constraint("Horizontal", 19, 3, 24, 3),
    Sketcher.Constraint("Horizontal", 1, 2, 5, 2),
    Sketcher.Constraint("Horizontal", 3, 2, 7, 2),
    Sketcher.Constraint("Horizontal", 6, 2, 10, 2),
    Sketcher.Constraint("Horizontal", 8, 2, 12, 2),
    Sketcher.Constraint("Horizontal", 11, 2, 15, 2),
    Sketcher.Constraint("Horizontal", 13, 2, 17, 2),
    Sketcher.Constraint("Horizontal", 16, 2, 20, 2),
    Sketcher.Constraint("Horizontal", 18, 2, 22, 2),
    Sketcher.Constraint("Equal", 3, 6),
    Sketcher.Constraint("Equal", 8, 11),
    Sketcher.Constraint("Equal", 13, 16),
    Sketcher.Constraint("Equal", 18, 21),
    Sketcher.Constraint("Diameter", 4, 0.7),
    Sketcher.Constraint("DistanceX", 1, 1, 1, 2, 1.5),
    Sketcher.Constraint("DistanceY", 0, 1, 0, 2, 2.5),
    Sketcher.Constraint("DistanceY", -1, 1, 4, 3, 11.0),
    Sketcher.Constraint("DistanceX", -1, 1, 9, 3, 6.5),
    Sketcher.Constraint("DistanceX", -1, 1, 4, 3, 3.96),
    Sketcher.Constraint("DistanceX", -1, 1, 14, 3, 1.42),
    Sketcher.Constraint("DistanceX", 19, 3, -1, 1, 1.12),
    Sketcher.Constraint("DistanceX", 24, 3, -1, 1, 3.66),
    Sketcher.Constraint("DistanceX", -1, 1, 0, 2, 3.21),
    Sketcher.Constraint("DistanceY", -1, 1, 0, 2, 12.25),
    Sketcher.Constraint("DistanceX", -1, 1, 5, 2, 5.75),
    Sketcher.Constraint("DistanceX", -1, 1, 10, 2, 0.67),
    Sketcher.Constraint("DistanceX", 15, 2, -1, 1, 1.87),
    Sketcher.Constraint("DistanceX", 20, 2, -1, 1, 4.41),
])
pad6 = body.newObject("PartDesign::Pad", "Pad005")
pad6.Profile = sketch12
pad6.Length = 0.01
pad6.Reversed = True
doc.recompute()

datumplane2 = body.newObject("PartDesign::Plane", "DatumPlane001")
datumplane2.AttachmentSupport = (doc.getObject("XZ_Plane"), [""])
datumplane2.MapMode = "FlatFace"
datumplane2.AttachmentOffset = App.Placement(App.Vector(0, 0, -0.6), App.Rotation())
mirrored2 = body.newObject("PartDesign::Mirrored", "Mirrored001")
mirrored2.Originals = [pad6]
mirrored2.MirrorPlane = (datumplane2, [""])
body.Tip = mirrored2
doc.recompute()

fillet = body.newObject("PartDesign::Fillet", "Fillet")
fillet.Base = (mirrored2, edges_at(mirrored2, [
    (7.2, 3.4, 3.2),
    (7.2, 3.4, -8.8),
    (-5, 3.4, -8.8),
    (-5, 3.4, 3.2),
]))
fillet.Radius = 0.5

doc.recompute()
